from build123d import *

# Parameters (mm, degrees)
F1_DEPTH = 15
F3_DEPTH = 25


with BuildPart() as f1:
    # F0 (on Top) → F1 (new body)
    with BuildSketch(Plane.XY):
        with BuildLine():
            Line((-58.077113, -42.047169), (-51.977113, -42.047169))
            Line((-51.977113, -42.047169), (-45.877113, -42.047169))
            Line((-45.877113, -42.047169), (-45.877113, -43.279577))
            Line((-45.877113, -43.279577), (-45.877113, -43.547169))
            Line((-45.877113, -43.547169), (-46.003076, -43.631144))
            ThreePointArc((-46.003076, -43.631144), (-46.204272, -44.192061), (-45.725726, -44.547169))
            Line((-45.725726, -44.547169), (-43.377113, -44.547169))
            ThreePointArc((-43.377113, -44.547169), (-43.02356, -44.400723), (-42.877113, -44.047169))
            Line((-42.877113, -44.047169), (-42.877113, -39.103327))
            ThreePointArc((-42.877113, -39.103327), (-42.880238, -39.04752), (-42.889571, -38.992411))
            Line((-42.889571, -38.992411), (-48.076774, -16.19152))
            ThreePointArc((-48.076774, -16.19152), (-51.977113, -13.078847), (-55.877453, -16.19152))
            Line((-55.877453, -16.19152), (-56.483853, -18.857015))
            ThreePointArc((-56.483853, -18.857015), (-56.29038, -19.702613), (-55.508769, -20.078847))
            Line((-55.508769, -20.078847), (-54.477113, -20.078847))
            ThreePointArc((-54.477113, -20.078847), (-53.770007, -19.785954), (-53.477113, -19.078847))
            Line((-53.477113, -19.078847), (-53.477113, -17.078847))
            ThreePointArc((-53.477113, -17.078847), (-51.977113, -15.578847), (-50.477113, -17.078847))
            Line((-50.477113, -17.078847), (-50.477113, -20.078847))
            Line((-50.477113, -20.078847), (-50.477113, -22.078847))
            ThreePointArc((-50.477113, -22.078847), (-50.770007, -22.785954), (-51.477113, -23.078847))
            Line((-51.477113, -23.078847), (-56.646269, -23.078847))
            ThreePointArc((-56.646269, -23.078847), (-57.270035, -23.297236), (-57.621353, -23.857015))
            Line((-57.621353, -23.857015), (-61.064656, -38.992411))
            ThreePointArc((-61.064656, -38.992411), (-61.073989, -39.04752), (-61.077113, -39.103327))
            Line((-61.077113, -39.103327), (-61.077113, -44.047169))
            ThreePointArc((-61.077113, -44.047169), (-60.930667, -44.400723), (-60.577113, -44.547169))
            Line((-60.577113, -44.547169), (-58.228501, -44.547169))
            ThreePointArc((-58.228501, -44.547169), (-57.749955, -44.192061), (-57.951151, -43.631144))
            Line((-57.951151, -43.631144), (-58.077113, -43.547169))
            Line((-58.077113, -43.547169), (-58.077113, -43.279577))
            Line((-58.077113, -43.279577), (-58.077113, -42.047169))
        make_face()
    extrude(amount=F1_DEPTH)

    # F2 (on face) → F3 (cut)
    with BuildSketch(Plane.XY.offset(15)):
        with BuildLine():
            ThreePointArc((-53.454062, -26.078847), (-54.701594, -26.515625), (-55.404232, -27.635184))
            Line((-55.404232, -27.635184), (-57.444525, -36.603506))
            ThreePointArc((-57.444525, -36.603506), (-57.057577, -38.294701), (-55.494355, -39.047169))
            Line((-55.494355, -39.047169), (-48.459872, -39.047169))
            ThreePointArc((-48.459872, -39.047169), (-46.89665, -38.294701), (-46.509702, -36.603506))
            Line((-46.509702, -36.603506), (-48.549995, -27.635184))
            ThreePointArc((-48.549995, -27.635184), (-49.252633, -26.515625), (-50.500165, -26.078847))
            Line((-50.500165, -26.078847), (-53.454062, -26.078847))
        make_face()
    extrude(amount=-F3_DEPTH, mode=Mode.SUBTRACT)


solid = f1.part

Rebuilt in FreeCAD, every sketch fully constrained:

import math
import FreeCAD as App
import Part
import Sketcher

V = App.Vector
Q = App.Units.Quantity

doc = App.newDocument("Part")
body = doc.addObject("PartDesign::Body", "Body")

sketch1 = body.newObject("Sketcher::SketchObject", "Sketch")
sketch1.AttachmentSupport = (doc.getObject("XY_Plane"), [""])
sketch1.MapMode = "FlatFace"
sketch1.addGeometry([
    Part.LineSegment(V(-58.08, -42.05, 0), V(-45.88, -42.05, 0)),
    Part.LineSegment(V(-45.88, -42.05, 0), V(-45.88, -43.55, 0)),
    Part.LineSegment(V(-45.88, -43.55, 0), V(-46, -43.63, 0)),
    Part.ArcOfCircle(Part.Circle(V(-45.73, -44.05, 0), V(0, 0, 1), 0.5), math.radians(124), math.radians(270)),
    Part.LineSegment(V(-45.73, -44.55, 0), V(-43.38, -44.55, 0)),
    Part.ArcOfCircle(Part.Circle(V(-43.38, -44.05, 0), V(0, 0, 1), 0.5), math.radians(-90), math.radians(0)),
    Part.LineSegment(V(-42.88, -44.05, 0), V(-42.88, -39.1, 0)),
    Part.ArcOfCircle(Part.Circle(V(-43.38, -39.1, 0), V(0, 0, 1), 0.5), math.radians(0), math.radians(12.82)),
    Part.LineSegment(V(-42.89, -38.99, 0), V(-48.08, -16.19, 0)),
    Part.ArcOfCircle(Part.Circle(V(-51.98, -17.08, 0), V(0, 0, 1), 4), math.radians(13), math.radians(167)),
    Part.LineSegment(V(-55.88, -16.19, 0), V(-56.48, -18.86, 0)),
    Part.ArcOfCircle(Part.Circle(V(-55.51, -19.08, 0), V(0, 0, 1), 1), math.radians(167), math.radians(270)),
    Part.LineSegment(V(-55.51, -20.08, 0), V(-54.48, -20.08, 0)),
    Part.ArcOfCircle(Part.Circle(V(-54.48, -19.08, 0), V(0, 0, 1), 1), math.radians(-90), math.radians(0)),
    Part.LineSegment(V(-53.48, -19.08, 0), V(-53.48, -17.08, 0)),
    Part.ArcOfCircle(Part.Circle(V(-51.98, -17.08, 0), V(0, 0, 1), 1.5), math.radians(0), math.radians(180)),
    Part.LineSegment(V(-50.48, -17.08, 0), V(-50.48, -22.08, 0)),
    Part.ArcOfCircle(Part.Circle(V(-51.48, -22.08, 0), V(0, 0, 1), 1), math.radians(-90), math.radians(0)),
    Part.LineSegment(V(-51.48, -23.08, 0), V(-56.65, -23.08, 0)),
    Part.ArcOfCircle(Part.Circle(V(-56.65, -24.08, 0), V(0, 0, 1), 1), math.radians(90), math.radians(167)),
    Part.LineSegment(V(-57.62, -23.86, 0), V(-61.06, -38.99, 0)),
    Part.ArcOfCircle(Part.Circle(V(-60.58, -39.1, 0), V(0, 0, 1), 0.5), math.radians(167.18), math.radians(180)),
    Part.LineSegment(V(-61.08, -39.1, 0), V(-61.08, -44.05, 0)),
    Part.ArcOfCircle(Part.Circle(V(-60.58, -44.05, 0), V(0, 0, 1), 0.5), math.radians(180), math.radians(270)),
    Part.LineSegment(V(-60.58, -44.55, 0), V(-58.23, -44.55, 0)),
    Part.ArcOfCircle(Part.Circle(V(-58.23, -44.05, 0), V(0, 0, 1), 0.5), math.radians(-90), math.radians(56)),
    Part.LineSegment(V(-57.95, -43.63, 0), V(-58.08, -43.55, 0)),
    Part.LineSegment(V(-58.08, -43.55, 0), V(-58.08, -42.05, 0)),
], False)
sketch1.addConstraint([
    Sketcher.Constraint("Coincident", 0, 2, 1, 1),
    Sketcher.Constraint("Coincident", 1, 2, 2, 1),
    Sketcher.Constraint("Tangent", 2, 2, 3, 1),
    Sketcher.Constraint("Tangent", 3, 2, 4, 1),
    Sketcher.Constraint("Tangent", 4, 2, 5, 1),
    Sketcher.Constraint("Tangent", 5, 2, 6, 1),
    Sketcher.Constraint("Coincident", 6, 2, 7, 1),
    Sketcher.Constraint("Coincident", 7, 2, 8, 1),
    Sketcher.Constraint("Tangent", 8, 2, 9, 1),
    Sketcher.Constraint("Tangent", 9, 2, 10, 1),
    Sketcher.Constraint("Tangent", 10, 2, 11, 1),
    Sketcher.Constraint("Tangent", 11, 2, 12, 1),
    Sketcher.Constraint("Tangent", 12, 2, 13, 1),
    Sketcher.Constraint("Tangent", 13, 2, 14, 1),
    Sketcher.Constraint("Tangent", 14, 2, 15, 2),
    Sketcher.Constraint("Tangent", 15, 1, 16, 1),
    Sketcher.Constraint("Tangent", 16, 2, 17, 2),
    Sketcher.Constraint("Tangent", 17, 1, 18, 1),
    Sketcher.Constraint("Tangent", 18, 2, 19, 1),
    Sketcher.Constraint("Tangent", 19, 2, 20, 1),
    Sketcher.Constraint("Coincident", 20, 2, 21, 1),
    Sketcher.Constraint("Tangent", 21, 2, 22, 1),
    Sketcher.Constraint("Coincident", 22, 2, 23, 1),
    Sketcher.Constraint("Coincident", 23, 2, 24, 1),
    Sketcher.Constraint("Tangent", 24, 2, 25, 1),
    Sketcher.Constraint("Coincident", 25, 2, 26, 1),
    Sketcher.Constraint("Coincident", 26, 2, 27, 1),
    Sketcher.Constraint("Coincident", 27, 2, 0, 1),
    Sketcher.Constraint("Horizontal", 0),
    Sketcher.Constraint("Vertical", 1),
    Sketcher.Constraint("Horizontal", 4),
    Sketcher.Constraint("Vertical", 6),
    Sketcher.Constraint("Horizontal", 12),
    Sketcher.Constraint("Vertical", 14),
    Sketcher.Constraint("Vertical", 16),
    Sketcher.Constraint("Horizontal", 18),
    Sketcher.Constraint("Vertical", 22),
    Sketcher.Constraint("Horizontal", 24),
    Sketcher.Constraint("Vertical", 27),
    Sketcher.Constraint("Coincident", 15, 3, 9, 3),
    Sketcher.Constraint("Equal", 3, 5),
    Sketcher.Constraint("Equal", 11, 13),
    Sketcher.Constraint("Equal", 13, 17),
    Sketcher.Constraint("Equal", 11, 19),
    Sketcher.Constraint("Equal", 5, 23),
    Sketcher.Constraint("Equal", 23, 25),
    Sketcher.Constraint("Parallel", 10, 20),
    Sketcher.Constraint("Horizontal", 5, 3, 23, 3),
    Sketcher.Constraint("Horizontal", 21, 3, 6, 2),
    Sketcher.Constraint("Horizontal", 8, 2, 9, 2),
    Sketcher.Constraint("Horizontal", 7, 2, 20, 2),
    Sketcher.Constraint("Horizontal", 5, 2, 22, 2),
    Sketcher.Constraint("Horizontal", 2, 2, 25, 2),
    Sketcher.Constraint("Horizontal", 1, 2, 26, 2),
    Sketcher.Constraint("Equal", 4, 24),
    Sketcher.Constraint("Equal", 2, 26),
    Sketcher.Constraint("Radius", 9, Q("4 mm")),
    Sketcher.Constraint("Radius", 11, Q("0.999999 mm")),
    Sketcher.Constraint("Radius", 3, Q("0.5 mm")),
    Sketcher.Constraint("Radius", 15, Q("1.5 mm")),
    Sketcher.Constraint("DistanceY", 14, 1, 14, 2, Q("2 mm")),
    Sketcher.Constraint("DistanceY", 16, 2, 16, 1, Q("5 mm")),
    Sketcher.Constraint("DistanceX", 0, 1, 0, 2, Q("12.2 mm")),
    Sketcher.Constraint("DistanceY", 1, 2, 1, 1, Q("1.5 mm")),
    Sketcher.Constraint("DistanceY", 3, 3, 0, 2, Q("2 mm")),
    Sketcher.Constraint("DistanceX", 1, 2, 5, 2, Q("3 mm")),
    Sketcher.Constraint("DistanceX", 9, 3, 5, 3, Q("8.600001 mm")),
    Sketcher.Constraint("DistanceX", 21, 2, 0, 2, Q("15.2 mm")),
    Sketcher.Constraint("Radius", 7, Q("0.500094 mm")),
    Sketcher.Constraint("Radius", 21, Q("0.500014 mm")),
    Sketcher.Constraint("DistanceX", 24, 1, 24, 2, Q("2.348612 mm")),
    Sketcher.Constraint("DistanceY", 6, 1, 6, 2, Q("4.943842 mm")),
    Sketcher.Constraint("DistanceX", 21, 3, -1, 1, Q("60.577099 mm")),
    Sketcher.Constraint("DistanceX", 19, 3, 11, 3, Q("1.1375 mm")),
    Sketcher.Constraint("DistanceX", 10, 2, 9, 2, Q("0.6064 mm")),
    Sketcher.Constraint("Distance", 20, Q("15.522131 mm")),
    Sketcher.Constraint("DistanceY", 3, 3, -1, 1, Q("44.047169 mm")),
])
pad1 = body.newObject("PartDesign::Pad", "Pad")
pad1.Profile = sketch1
pad1.Length = 15

sketch2 = body.newObject("Sketcher::SketchObject", "Sketch001")
sketch2.AttachmentSupport = (doc.getObject("XY_Plane"), [""])
sketch2.MapMode = "FlatFace"
sketch2.AttachmentOffset = App.Placement(V(0, 0, 15), App.Rotation())
sketch2.addGeometry([
    Part.ArcOfCircle(Part.Circle(V(-53.5, -28.1, 0), V(0, 0, 1), 2), math.radians(90), math.radians(167)),
    Part.LineSegment(V(-55.4, -27.6, 0), V(-57.4, -36.6, 0)),
    Part.ArcOfCircle(Part.Circle(V(-55.5, -37, 0), V(0, 0, 1), 2), math.radians(167), math.radians(270)),
    Part.LineSegment(V(-55.5, -39, 0), V(-48.5, -39, 0)),
    Part.ArcOfCircle(Part.Circle(V(-48.5, -37, 0), V(0, 0, 1), 2), math.radians(-90), math.radians(13)),
    Part.LineSegment(V(-46.5, -36.6, 0), V(-48.5, -27.6, 0)),
    Part.ArcOfCircle(Part.Circle(V(-50.5, -28.1, 0), V(0, 0, 1), 2), math.radians(13), math.radians(90)),
    Part.LineSegment(V(-50.5, -26.1, 0), V(-53.5, -26.1, 0)),
], False)
sketch2.addConstraint([
    Sketcher.Constraint("Tangent", 0, 2, 1, 1),
    Sketcher.Constraint("Tangent", 1, 2, 2, 1),
    Sketcher.Constraint("Tangent", 2, 2, 3, 1),
    Sketcher.Constraint("Tangent", 3, 2, 4, 1),
    Sketcher.Constraint("Tangent", 4, 2, 5, 1),
    Sketcher.Constraint("Tangent", 5, 2, 6, 1),
    Sketcher.Constraint("Tangent", 6, 2, 7, 1),
    Sketcher.Constraint("Tangent", 7, 2, 0, 1),
    Sketcher.Constraint("Horizontal", 3),
    Sketcher.Constraint("Horizontal", 7),
    Sketcher.Constraint("Equal", 0, 2),
    Sketcher.Constraint("Equal", 2, 4),
    Sketcher.Constraint("Equal", 4, 6),
    Sketcher.Constraint("Horizontal", 1, 2, 4, 2),
    Sketcher.Constraint("Radius", 0, Q("2.000001 mm")),
    Sketcher.Constraint("DistanceX", 3, 1, 3, 2, Q("7.034483 mm")),
    Sketcher.Constraint("DistanceX", 7, 2, 7, 1, Q("2.953897 mm")),
    Sketcher.Constraint("DistanceX", 0, 3, -1, 1, Q("53.454061 mm")),
    Sketcher.Constraint("DistanceY", 2, 3, -1, 1, Q("37.047169 mm")),
    Sketcher.Constraint("DistanceX", 0, 2, -1, 1, Q("55.404232 mm")),
])
pocket1 = body.newObject("PartDesign::Pocket", "Pocket")
pocket1.Profile = sketch2
pocket1.Length = 25

doc.recompute()
